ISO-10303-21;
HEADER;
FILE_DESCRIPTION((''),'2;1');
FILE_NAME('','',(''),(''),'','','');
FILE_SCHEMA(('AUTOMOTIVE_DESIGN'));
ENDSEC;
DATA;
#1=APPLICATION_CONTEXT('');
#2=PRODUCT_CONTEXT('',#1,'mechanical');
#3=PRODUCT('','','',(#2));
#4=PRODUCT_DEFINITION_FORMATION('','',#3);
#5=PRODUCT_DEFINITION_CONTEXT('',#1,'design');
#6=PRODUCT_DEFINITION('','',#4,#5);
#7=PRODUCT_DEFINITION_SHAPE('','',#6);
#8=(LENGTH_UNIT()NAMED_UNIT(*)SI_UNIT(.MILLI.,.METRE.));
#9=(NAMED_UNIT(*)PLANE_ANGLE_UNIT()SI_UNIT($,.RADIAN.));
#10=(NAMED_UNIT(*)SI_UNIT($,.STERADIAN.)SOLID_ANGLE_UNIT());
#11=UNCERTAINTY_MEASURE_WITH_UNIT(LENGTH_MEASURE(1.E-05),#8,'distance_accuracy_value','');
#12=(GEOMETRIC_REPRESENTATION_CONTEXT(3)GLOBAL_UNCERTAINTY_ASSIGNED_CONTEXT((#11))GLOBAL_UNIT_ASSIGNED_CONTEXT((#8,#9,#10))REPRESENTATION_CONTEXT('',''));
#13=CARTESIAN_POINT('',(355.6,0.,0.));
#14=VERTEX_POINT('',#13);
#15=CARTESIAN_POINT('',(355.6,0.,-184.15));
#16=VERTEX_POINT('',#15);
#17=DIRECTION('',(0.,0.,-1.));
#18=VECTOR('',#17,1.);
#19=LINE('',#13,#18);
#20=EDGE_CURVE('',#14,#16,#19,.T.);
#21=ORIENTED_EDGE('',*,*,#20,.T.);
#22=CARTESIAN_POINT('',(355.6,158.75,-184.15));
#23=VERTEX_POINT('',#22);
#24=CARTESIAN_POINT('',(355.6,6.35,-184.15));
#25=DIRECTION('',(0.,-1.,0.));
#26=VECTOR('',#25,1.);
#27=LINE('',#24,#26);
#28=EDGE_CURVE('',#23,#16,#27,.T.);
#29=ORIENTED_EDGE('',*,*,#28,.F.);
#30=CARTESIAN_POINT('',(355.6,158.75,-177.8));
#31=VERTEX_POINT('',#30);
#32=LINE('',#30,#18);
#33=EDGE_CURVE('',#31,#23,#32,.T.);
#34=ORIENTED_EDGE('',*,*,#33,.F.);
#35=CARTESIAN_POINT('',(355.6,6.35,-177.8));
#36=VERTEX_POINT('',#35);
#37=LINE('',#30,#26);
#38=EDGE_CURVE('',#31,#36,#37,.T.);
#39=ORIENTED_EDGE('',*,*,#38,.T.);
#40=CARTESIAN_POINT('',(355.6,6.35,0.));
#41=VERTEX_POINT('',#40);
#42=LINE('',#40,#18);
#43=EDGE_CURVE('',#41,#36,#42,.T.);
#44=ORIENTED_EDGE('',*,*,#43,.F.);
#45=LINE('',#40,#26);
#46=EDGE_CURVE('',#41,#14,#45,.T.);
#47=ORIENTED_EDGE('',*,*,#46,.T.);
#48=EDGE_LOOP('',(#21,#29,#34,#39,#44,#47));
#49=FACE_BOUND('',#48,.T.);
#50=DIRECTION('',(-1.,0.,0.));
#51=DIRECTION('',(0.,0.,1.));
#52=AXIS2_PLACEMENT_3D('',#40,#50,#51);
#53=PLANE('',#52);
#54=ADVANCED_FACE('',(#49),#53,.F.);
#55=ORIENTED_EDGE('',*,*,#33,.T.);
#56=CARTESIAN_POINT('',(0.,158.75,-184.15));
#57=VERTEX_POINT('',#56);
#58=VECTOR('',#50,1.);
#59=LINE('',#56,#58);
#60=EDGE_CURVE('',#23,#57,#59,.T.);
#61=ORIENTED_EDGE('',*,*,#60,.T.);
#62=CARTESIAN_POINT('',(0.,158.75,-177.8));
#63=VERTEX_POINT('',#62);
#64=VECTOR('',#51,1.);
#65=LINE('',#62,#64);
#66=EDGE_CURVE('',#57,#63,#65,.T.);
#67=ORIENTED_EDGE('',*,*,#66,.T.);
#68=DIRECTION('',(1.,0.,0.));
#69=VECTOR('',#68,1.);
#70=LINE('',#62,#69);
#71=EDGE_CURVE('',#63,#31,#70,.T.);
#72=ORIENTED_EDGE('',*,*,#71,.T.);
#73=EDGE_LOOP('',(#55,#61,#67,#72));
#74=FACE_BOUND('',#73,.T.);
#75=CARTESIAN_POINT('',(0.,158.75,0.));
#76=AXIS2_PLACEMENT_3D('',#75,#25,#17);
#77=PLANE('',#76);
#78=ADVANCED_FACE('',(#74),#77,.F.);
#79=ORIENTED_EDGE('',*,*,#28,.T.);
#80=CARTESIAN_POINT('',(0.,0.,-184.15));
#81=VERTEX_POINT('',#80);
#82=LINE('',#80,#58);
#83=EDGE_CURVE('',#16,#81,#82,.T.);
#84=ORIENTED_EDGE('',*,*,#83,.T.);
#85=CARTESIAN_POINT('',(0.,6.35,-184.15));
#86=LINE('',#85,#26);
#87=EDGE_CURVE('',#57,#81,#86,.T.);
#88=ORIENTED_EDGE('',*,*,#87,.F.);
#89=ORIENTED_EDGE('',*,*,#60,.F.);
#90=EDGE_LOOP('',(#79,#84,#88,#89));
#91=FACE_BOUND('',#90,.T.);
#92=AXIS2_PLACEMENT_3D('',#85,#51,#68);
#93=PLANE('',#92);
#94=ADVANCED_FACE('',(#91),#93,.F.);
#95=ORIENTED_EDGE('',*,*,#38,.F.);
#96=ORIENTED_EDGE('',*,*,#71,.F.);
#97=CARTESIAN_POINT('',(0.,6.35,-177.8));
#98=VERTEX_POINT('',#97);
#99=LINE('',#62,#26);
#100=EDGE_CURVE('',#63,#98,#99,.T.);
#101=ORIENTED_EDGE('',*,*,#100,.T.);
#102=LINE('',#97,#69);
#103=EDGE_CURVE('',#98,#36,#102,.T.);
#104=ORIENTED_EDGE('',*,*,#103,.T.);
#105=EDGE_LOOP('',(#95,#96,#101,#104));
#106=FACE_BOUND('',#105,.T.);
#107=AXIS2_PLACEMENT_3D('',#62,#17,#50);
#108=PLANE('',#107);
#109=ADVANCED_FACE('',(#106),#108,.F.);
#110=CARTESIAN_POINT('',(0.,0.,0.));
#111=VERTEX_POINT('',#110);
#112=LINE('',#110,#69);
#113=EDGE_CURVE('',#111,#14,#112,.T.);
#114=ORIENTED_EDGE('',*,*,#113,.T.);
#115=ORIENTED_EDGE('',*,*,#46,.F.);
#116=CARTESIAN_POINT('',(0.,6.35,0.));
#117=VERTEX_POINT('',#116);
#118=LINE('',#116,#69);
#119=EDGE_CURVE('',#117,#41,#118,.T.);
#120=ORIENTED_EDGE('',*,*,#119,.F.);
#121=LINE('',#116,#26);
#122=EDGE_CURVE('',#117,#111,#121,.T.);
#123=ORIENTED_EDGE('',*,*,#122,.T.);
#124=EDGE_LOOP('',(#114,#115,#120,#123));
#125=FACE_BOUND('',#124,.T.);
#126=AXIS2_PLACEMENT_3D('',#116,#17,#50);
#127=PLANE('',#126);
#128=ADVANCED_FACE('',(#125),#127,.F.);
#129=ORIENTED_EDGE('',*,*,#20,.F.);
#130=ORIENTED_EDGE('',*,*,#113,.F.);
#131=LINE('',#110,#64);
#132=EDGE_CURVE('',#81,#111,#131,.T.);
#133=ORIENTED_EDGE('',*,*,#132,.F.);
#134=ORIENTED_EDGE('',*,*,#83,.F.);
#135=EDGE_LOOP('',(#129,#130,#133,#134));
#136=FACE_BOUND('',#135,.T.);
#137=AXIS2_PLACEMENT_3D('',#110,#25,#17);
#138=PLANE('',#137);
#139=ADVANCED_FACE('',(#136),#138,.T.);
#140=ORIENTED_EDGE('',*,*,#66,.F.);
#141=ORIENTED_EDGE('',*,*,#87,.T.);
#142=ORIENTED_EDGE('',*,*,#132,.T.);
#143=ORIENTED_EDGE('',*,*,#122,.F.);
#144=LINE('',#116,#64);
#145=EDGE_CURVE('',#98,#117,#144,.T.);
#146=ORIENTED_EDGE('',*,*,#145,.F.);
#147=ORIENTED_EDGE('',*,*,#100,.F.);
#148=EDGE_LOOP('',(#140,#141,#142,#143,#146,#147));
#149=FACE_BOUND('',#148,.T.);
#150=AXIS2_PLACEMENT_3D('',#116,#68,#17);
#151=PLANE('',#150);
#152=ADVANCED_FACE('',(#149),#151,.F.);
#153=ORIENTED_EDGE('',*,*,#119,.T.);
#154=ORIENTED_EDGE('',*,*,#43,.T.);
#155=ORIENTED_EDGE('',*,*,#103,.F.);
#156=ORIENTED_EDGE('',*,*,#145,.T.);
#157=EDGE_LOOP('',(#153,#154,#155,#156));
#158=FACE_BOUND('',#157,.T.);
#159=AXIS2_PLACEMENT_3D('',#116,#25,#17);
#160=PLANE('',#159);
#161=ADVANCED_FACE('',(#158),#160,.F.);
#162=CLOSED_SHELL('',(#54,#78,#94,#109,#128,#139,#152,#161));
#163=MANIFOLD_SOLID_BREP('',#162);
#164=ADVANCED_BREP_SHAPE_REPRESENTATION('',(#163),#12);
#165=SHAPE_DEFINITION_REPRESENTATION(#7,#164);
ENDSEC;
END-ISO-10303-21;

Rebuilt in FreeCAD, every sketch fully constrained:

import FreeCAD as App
import Part
import Sketcher
Q = App.Units.Quantity

doc = App.newDocument("Part")
body = doc.addObject("PartDesign::Body", "Body")

sketch1 = body.newObject("Sketcher::SketchObject", "Sketch")
sketch1.AttachmentSupport = (doc.getObject("XZ_Plane"), [""])
sketch1.MapMode = "FlatFace"
sketch1.addGeometry([
    Part.LineSegment(App.Vector(0, -184, 0), App.Vector(0, 0, 0)),
    Part.LineSegment(App.Vector(0, 0, 0), App.Vector(356, 0, 0)),
    Part.LineSegment(App.Vector(356, 0, 0), App.Vector(356, -184, 0)),
    Part.LineSegment(App.Vector(356, -184, 0), App.Vector(0, -184, 0)),
], False)
sketch1.addConstraint([
    Sketcher.Constraint("Coincident", 0, 2, 1, 1),
    Sketcher.Constraint("Coincident", 1, 2, 2, 1),
    Sketcher.Constraint("Coincident", 2, 2, 3, 1),
    Sketcher.Constraint("Coincident", 3, 2, 0, 1),
    Sketcher.Constraint("Vertical", 0),
    Sketcher.Constraint("Horizontal", 1),
    Sketcher.Constraint("Vertical", 2),
    Sketcher.Constraint("Horizontal", 3),
    Sketcher.Constraint("Coincident", 0, 2, -1, 1),
    Sketcher.Constraint("DistanceX", 1, 1, 1, 2, Q("14 in")),
    Sketcher.Constraint("DistanceY", 0, 1, 0, 2, Q("7.25 in")),
])
pad1 = body.newObject("PartDesign::Pad", "Pad")
pad1.Profile = sketch1
pad1.Length = Q("0.25 in")
pad1.Reversed = True

sketch2 = body.newObject("Sketcher::SketchObject", "Sketch001")
sketch2.AttachmentSupport = (doc.getObject("XZ_Plane"), [""])
sketch2.MapMode = "FlatFace"
sketch2.AttachmentOffset = App.Placement(App.Vector(0, 0, -0.25 * 25.4), App.Rotation())
sketch2.addGeometry([
    Part.LineSegment(App.Vector(0, -184, 0), App.Vector(0, -178, 0)),
    Part.LineSegment(App.Vector(0, -178, 0), App.Vector(356, -178, 0)),
    Part.LineSegment(App.Vector(356, -178, 0), App.Vector(356, -184, 0)),
    Part.LineSegment(App.Vector(356, -184, 0), App.Vector(0, -184, 0)),
], False)
sketch2.addConstraint([
    Sketcher.Constraint("Coincident", 0, 2, 1, 1),
    Sketcher.Constraint("Coincident", 1, 2, 2, 1),
    Sketcher.Constraint("Coincident", 2, 2, 3, 1),
    Sketcher.Constraint("Coincident", 3, 2, 0, 1),
    Sketcher.Constraint("Vertical", 0),
    Sketcher.Constraint("Horizontal", 1),
    Sketcher.Constraint("Vertical", 2),
    Sketcher.Constraint("Horizontal", 3),
    Sketcher.Constraint("PointOnObject", 0, 2, -2),
    Sketcher.Constraint("DistanceX", 1, 1, 1, 2, Q("14 in")),
    Sketcher.Constraint("DistanceY", 0, 2, -1, 1, Q("7 in")),
    Sketcher.Constraint("DistanceY", 0, 1, 0, 2, Q("0.25 in")),
])
pad2 = body.newObject("PartDesign::Pad", "Pad001")
pad2.Profile = sketch2
pad2.Length = Q("6 in")
pad2.Reversed = True

doc.recompute()
